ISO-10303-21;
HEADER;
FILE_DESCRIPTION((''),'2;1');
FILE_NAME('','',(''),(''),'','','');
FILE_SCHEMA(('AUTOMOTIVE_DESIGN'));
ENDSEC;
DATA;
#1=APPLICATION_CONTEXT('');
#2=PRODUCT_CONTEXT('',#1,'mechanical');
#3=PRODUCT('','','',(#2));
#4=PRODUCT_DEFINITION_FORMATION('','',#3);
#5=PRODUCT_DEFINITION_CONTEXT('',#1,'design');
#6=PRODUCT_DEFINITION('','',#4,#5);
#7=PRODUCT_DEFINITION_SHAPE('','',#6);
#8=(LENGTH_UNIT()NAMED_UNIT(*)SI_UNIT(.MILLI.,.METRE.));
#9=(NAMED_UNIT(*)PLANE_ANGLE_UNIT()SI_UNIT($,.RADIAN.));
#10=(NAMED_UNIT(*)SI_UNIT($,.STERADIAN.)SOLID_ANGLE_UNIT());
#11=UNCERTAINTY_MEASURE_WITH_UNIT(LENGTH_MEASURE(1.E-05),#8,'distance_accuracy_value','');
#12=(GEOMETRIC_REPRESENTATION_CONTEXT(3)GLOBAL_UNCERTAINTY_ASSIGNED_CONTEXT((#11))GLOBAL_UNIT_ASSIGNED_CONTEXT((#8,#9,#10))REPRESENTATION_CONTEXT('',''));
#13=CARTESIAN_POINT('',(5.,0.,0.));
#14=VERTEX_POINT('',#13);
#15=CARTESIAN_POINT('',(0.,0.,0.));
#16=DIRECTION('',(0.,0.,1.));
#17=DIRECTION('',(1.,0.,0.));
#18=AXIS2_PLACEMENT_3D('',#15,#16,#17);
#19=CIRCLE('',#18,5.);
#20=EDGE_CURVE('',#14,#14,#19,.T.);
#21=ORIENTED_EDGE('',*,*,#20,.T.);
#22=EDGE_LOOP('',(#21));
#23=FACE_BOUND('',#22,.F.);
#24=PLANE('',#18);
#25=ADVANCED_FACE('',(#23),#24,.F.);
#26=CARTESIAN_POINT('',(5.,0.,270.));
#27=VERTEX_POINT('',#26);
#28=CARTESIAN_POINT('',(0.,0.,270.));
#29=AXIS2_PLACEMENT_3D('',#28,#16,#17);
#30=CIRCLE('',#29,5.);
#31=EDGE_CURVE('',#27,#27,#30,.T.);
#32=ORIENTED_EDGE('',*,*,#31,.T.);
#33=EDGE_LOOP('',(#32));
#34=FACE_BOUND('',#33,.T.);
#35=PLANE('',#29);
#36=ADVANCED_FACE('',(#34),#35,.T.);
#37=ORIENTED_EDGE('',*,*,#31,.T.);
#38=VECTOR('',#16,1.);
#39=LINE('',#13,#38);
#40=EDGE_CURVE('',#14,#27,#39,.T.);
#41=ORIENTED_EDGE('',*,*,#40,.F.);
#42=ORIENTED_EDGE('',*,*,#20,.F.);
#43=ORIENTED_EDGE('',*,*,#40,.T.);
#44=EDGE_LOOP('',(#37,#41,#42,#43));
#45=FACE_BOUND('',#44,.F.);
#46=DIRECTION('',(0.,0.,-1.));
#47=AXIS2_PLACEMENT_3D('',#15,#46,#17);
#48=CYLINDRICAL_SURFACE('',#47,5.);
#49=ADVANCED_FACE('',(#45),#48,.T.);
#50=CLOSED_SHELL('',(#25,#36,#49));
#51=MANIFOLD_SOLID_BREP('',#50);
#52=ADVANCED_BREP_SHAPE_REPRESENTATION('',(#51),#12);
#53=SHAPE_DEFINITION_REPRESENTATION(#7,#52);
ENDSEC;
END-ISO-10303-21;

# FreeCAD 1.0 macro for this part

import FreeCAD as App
import Part
import Sketcher
Q = App.Units.Quantity

doc = App.newDocument("Part")
params = doc.addObject("Spreadsheet::Sheet", "Params")
for row, (alias, value) in enumerate([
    ("sketch1_diameter", "10 mm"),
    ("pad1_length", "270 mm"),
], start=1):
    params.set(f"A{row}", alias)
    params.set(f"B{row}", "=" + value)
    params.setAlias(f"B{row}", alias)

body = doc.addObject("PartDesign::Body", "Body")

sketch1 = doc.addObject("Sketcher::SketchObject", "Sketch")
body.addObject(sketch1)
sketch1.AttachmentSupport = (doc.XY_Plane, [""])
sketch1.MapMode = "FlatFace"
sketch1.addGeometry(Part.Circle(App.Vector(0, 0, 0), App.Vector(0, 0, 1), 5), False)
sketch1.addConstraint(Sketcher.Constraint("Coincident", 0, 3, -1, 1))
sketch1.addConstraint(Sketcher.Constraint("Diameter", 0, Q("10 mm")))
sketch1.setExpression("Constraints[1]", "Params.sketch1_diameter")
pad1 = doc.addObject("PartDesign::Pad", "Pad")
body.addObject(pad1)
pad1.Profile = sketch1
pad1.setExpression("Length", "Params.pad1_length")

doc.recompute()
